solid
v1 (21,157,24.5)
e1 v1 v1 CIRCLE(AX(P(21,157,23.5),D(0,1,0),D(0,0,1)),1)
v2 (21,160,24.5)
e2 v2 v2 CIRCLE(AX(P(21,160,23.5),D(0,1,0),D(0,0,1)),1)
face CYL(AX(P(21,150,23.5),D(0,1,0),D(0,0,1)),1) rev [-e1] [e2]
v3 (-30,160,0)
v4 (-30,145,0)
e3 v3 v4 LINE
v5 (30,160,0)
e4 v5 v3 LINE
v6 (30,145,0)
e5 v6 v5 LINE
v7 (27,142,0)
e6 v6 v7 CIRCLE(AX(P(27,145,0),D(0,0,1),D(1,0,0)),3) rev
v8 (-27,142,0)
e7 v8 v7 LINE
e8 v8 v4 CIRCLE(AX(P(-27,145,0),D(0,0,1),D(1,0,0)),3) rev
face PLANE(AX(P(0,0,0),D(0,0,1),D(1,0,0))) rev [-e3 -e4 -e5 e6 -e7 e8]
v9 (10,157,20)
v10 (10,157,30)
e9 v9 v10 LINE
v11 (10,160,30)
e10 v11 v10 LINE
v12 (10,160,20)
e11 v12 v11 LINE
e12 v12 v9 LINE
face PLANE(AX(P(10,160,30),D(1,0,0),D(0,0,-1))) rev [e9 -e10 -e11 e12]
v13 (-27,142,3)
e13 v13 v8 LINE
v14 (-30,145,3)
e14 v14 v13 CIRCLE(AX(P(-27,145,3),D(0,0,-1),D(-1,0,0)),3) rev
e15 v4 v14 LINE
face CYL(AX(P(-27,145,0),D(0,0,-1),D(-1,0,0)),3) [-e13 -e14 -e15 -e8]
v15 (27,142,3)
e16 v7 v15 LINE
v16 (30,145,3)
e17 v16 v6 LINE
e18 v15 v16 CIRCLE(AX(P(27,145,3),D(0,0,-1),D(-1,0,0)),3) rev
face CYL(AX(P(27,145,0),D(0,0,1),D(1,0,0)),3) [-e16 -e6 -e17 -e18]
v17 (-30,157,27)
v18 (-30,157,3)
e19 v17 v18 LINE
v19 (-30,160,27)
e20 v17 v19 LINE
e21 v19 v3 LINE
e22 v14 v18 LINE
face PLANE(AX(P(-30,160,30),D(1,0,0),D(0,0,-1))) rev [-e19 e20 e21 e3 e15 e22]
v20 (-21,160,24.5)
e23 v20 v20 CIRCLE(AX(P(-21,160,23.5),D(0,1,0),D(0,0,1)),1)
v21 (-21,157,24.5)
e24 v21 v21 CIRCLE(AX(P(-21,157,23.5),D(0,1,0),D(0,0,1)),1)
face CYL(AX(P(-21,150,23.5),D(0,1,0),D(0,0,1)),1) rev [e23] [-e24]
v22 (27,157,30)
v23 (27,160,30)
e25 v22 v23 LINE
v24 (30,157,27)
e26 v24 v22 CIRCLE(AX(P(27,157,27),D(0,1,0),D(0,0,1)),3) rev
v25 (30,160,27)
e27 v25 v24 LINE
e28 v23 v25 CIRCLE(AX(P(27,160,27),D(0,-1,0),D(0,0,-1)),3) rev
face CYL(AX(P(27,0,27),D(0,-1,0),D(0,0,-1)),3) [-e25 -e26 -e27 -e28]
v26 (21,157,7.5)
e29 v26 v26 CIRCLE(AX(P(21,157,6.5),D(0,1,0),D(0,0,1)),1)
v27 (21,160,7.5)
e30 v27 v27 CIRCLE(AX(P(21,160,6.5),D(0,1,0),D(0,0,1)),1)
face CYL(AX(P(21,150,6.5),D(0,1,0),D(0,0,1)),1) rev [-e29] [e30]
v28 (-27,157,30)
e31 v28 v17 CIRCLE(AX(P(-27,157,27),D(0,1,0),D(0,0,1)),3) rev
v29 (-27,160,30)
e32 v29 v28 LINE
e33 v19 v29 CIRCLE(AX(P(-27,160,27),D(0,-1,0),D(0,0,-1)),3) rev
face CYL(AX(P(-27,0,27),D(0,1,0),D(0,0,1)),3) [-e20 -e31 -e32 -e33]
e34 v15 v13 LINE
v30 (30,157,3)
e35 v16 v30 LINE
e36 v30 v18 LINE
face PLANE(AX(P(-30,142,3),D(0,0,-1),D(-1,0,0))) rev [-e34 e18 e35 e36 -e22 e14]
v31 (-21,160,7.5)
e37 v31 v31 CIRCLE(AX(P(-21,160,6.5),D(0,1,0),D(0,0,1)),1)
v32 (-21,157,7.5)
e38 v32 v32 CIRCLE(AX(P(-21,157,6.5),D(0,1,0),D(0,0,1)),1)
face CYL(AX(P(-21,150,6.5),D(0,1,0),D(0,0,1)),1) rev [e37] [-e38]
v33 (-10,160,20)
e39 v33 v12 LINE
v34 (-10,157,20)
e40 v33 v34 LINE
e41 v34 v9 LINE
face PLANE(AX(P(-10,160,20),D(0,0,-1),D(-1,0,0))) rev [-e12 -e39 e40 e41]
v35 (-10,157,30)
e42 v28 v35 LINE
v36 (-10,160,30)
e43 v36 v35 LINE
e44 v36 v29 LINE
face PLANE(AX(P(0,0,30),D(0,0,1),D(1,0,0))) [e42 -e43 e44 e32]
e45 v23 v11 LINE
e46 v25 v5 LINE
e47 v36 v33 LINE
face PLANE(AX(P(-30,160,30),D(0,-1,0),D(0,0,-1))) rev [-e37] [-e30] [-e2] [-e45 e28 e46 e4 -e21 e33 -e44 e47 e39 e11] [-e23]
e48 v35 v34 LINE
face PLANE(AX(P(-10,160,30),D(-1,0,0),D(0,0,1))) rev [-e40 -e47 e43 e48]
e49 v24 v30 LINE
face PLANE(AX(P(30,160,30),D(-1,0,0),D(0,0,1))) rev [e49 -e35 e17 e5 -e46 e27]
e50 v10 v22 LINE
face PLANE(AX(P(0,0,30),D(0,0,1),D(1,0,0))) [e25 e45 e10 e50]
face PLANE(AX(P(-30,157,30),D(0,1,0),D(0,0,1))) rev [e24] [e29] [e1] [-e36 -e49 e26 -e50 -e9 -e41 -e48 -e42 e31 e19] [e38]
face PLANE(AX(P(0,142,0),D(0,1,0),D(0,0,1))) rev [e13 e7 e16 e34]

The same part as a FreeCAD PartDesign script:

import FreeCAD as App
import Part
import Sketcher


def edges_at(feature, points):
    """Names of the edges that pass closest to the given points."""
    edges = feature.Shape.Edges
    near = lambda p: min(range(len(edges)), key=lambda i: edges[i].distToShape(Part.Vertex(*p))[0])
    return sorted({f"Edge{near(p) + 1}" for p in points})

doc = App.newDocument("Part")
params = doc.addObject("Spreadsheet::Sheet", "Params")
for row, (alias, value) in enumerate([
    ("sketch1_width", "60 mm"),
    ("sketch1_height", "3 mm"),
    ("pad1_length", "30 mm"),
    ("sketch2_width", "60 mm"),
    ("sketch2_height", "3 mm"),
    ("pad2_length", "15 mm"),
    ("sketch3_width", "20 mm"),
    ("sketch3_height", "10 mm"),
    ("fillet_radius", "3 mm"),
    ("sketch4_diameter", "2 mm"),
    ("pocket2_length", "10 mm"),
], start=1):
    params.set(f"A{row}", alias)
    params.set(f"B{row}", "=" + value)
    params.setAlias(f"B{row}", alias)

body = doc.addObject("PartDesign::Body", "Body")

sketch1 = body.newObject("Sketcher::SketchObject", "Sketch")
sketch1.AttachmentSupport = (doc.getObject("XY_Plane"), [""])
sketch1.MapMode = "FlatFace"
sketch1.addGeometry([
    Part.LineSegment(App.Vector(-30, 160, 0), App.Vector(-30, 157, 0)),
    Part.LineSegment(App.Vector(-30, 157, 0), App.Vector(30, 157, 0)),
    Part.LineSegment(App.Vector(30, 157, 0), App.Vector(30, 160, 0)),
    Part.LineSegment(App.Vector(30, 160, 0), App.Vector(-30, 160, 0)),
], False)
sketch1.addConstraint([
    Sketcher.Constraint("Coincident", 0, 2, 1, 1),
    Sketcher.Constraint("Coincident", 1, 2, 2, 1),
    Sketcher.Constraint("Coincident", 2, 2, 3, 1),
    Sketcher.Constraint("Coincident", 3, 2, 0, 1),
    Sketcher.Constraint("Vertical", 0),
    Sketcher.Constraint("Horizontal", 1),
    Sketcher.Constraint("Vertical", 2),
    Sketcher.Constraint("Horizontal", 3),
    Sketcher.Constraint("DistanceX", 1, 1, 1, 2, 60.0),
    Sketcher.Constraint("DistanceY", 0, 2, 0, 1, 3.0),
    Sketcher.Constraint("DistanceX", 0, 2, -1, 1, 30.0),
    Sketcher.Constraint("DistanceY", -1, 1, 0, 2, 157.0),
])
sketch1.setExpression("Constraints[8]", "Params.sketch1_width")
sketch1.setExpression("Constraints[9]", "Params.sketch1_height")
pad1 = body.newObject("PartDesign::Pad", "Pad")
pad1.Profile = sketch1
pad1.setExpression("Length", "Params.pad1_length")

sketch2 = body.newObject("Sketcher::SketchObject", "Sketch001")
sketch2.AttachmentSupport = (doc.getObject("XZ_Plane"), [""])
sketch2.MapMode = "FlatFace"
sketch2.AttachmentOffset = App.Placement(App.Vector(0, 0, -157), App.Rotation())
sketch2.addGeometry([
    Part.LineSegment(App.Vector(-30, 3, 0), App.Vector(-30, 0, 0)),
    Part.LineSegment(App.Vector(-30, 0, 0), App.Vector(30, 0, 0)),
    Part.LineSegment(App.Vector(30, 0, 0), App.Vector(30, 3, 0)),
    Part.LineSegment(App.Vector(30, 3, 0), App.Vector(-30, 3, 0)),
], False)
sketch2.addConstraint([
    Sketcher.Constraint("Coincident", 0, 2, 1, 1),
    Sketcher.Constraint("Coincident", 1, 2, 2, 1),
    Sketcher.Constraint("Coincident", 2, 2, 3, 1),
    Sketcher.Constraint("Coincident", 3, 2, 0, 1),
    Sketcher.Constraint("Vertical", 0),
    Sketcher.Constraint("Horizontal", 1),
    Sketcher.Constraint("Vertical", 2),
    Sketcher.Constraint("Horizontal", 3),
    Sketcher.Constraint("Symmetric", 0, 2, 1, 2, -1, 1),
    Sketcher.Constraint("DistanceX", 1, 1, 1, 2, 60.0),
    Sketcher.Constraint("DistanceY", 0, 2, 0, 1, 3.0),
])
sketch2.setExpression("Constraints[9]", "Params.sketch2_width")
sketch2.setExpression("Constraints[10]", "Params.sketch2_height")
pad2 = body.newObject("PartDesign::Pad", "Pad001")
pad2.Profile = sketch2
pad2.setExpression("Length", "Params.pad2_length")

sketch3 = body.newObject("Sketcher::SketchObject", "Sketch002")
sketch3.AttachmentSupport = (doc.getObject("XZ_Plane"), [""])
sketch3.MapMode = "FlatFace"
sketch3.AttachmentOffset = App.Placement(App.Vector(0, 0, -157), App.Rotation())
sketch3.addGeometry([
    Part.LineSegment(App.Vector(-10, 30, 0), App.Vector(-10, 20, 0)),
    Part.LineSegment(App.Vector(-10, 20, 0), App.Vector(10, 20, 0)),
    Part.LineSegment(App.Vector(10, 20, 0), App.Vector(10, 30, 0)),
    Part.LineSegment(App.Vector(10, 30, 0), App.Vector(-10, 30, 0)),
], False)
sketch3.addConstraint([
    Sketcher.Constraint("Coincident", 0, 2, 1, 1),
    Sketcher.Constraint("Coincident", 1, 2, 2, 1),
    Sketcher.Constraint("Coincident", 2, 2, 3, 1),
    Sketcher.Constraint("Coincident", 3, 2, 0, 1),
    Sketcher.Constraint("Vertical", 0),
    Sketcher.Constraint("Horizontal", 1),
    Sketcher.Constraint("Vertical", 2),
    Sketcher.Constraint("Horizontal", 3),
    Sketcher.Constraint("DistanceX", 1, 1, 1, 2, 20.0),
    Sketcher.Constraint("DistanceY", 0, 2, 0, 1, 10.0),
    Sketcher.Constraint("DistanceX", 0, 2, -1, 1, 10.0),
    Sketcher.Constraint("DistanceY", -1, 1, 0, 2, 20.0),
])
sketch3.setExpression("Constraints[8]", "Params.sketch3_width")
sketch3.setExpression("Constraints[9]", "Params.sketch3_height")
pocket1 = body.newObject("PartDesign::Pocket", "Pocket")
pocket1.Profile = sketch3
pocket1.Type = "ThroughAll"
doc.recompute()

fillet = body.newObject("PartDesign::Fillet", "Fillet")
fillet.Base = (pocket1, edges_at(pocket1, [
    (30, 158.5, 30),
    (-30, 142, 1.5),
    (30, 142, 1.5),
    (-30, 158.5, 30),
]))
fillet.setExpression("Radius", "Params.fillet_radius")

sketch4 = body.newObject("Sketcher::SketchObject", "Sketch003")
sketch4.AttachmentSupport = (doc.getObject("XZ_Plane"), [""])
sketch4.MapMode = "FlatFace"
sketch4.AttachmentOffset = App.Placement(App.Vector(0, 0, -160), App.Rotation())
sketch4.addGeometry([
    Part.Circle(App.Vector(-21, 23.5, 0), App.Vector(0, 0, 1), 1),
    Part.Circle(App.Vector(-21, 6.5, 0), App.Vector(0, 0, 1), 1),
    Part.Circle(App.Vector(21, 6.5, 0), App.Vector(0, 0, 1), 1),
    Part.Circle(App.Vector(21, 23.5, 0), App.Vector(0, 0, 1), 1),
], False)
sketch4.addConstraint([
    Sketcher.Constraint("Equal", 0, 1),
    Sketcher.Constraint("Equal", 1, 2),
    Sketcher.Constraint("Equal", 2, 3),
    Sketcher.Constraint("Symmetric", 1, 3, 2, 3, -2),
    Sketcher.Constraint("Symmetric", 0, 3, 3, 3, -2),
    Sketcher.Constraint("Vertical", 0, 3, 1, 3),
    Sketcher.Constraint("Diameter", 0, 2.0),
    Sketcher.Constraint("DistanceX", 0, 3, -1, 1, 21.0),
    Sketcher.Constraint("DistanceY", 1, 3, 0, 3, 17.0),
    Sketcher.Constraint("DistanceY", -1, 1, 0, 3, 23.5),
])
sketch4.setExpression("Constraints[6]", "Params.sketch4_diameter")
pocket2 = body.newObject("PartDesign::Pocket", "Pocket001")
pocket2.Profile = sketch4
pocket2.setExpression("Length", "Params.pocket2_length")
pocket2.Reversed = True

doc.recompute()
